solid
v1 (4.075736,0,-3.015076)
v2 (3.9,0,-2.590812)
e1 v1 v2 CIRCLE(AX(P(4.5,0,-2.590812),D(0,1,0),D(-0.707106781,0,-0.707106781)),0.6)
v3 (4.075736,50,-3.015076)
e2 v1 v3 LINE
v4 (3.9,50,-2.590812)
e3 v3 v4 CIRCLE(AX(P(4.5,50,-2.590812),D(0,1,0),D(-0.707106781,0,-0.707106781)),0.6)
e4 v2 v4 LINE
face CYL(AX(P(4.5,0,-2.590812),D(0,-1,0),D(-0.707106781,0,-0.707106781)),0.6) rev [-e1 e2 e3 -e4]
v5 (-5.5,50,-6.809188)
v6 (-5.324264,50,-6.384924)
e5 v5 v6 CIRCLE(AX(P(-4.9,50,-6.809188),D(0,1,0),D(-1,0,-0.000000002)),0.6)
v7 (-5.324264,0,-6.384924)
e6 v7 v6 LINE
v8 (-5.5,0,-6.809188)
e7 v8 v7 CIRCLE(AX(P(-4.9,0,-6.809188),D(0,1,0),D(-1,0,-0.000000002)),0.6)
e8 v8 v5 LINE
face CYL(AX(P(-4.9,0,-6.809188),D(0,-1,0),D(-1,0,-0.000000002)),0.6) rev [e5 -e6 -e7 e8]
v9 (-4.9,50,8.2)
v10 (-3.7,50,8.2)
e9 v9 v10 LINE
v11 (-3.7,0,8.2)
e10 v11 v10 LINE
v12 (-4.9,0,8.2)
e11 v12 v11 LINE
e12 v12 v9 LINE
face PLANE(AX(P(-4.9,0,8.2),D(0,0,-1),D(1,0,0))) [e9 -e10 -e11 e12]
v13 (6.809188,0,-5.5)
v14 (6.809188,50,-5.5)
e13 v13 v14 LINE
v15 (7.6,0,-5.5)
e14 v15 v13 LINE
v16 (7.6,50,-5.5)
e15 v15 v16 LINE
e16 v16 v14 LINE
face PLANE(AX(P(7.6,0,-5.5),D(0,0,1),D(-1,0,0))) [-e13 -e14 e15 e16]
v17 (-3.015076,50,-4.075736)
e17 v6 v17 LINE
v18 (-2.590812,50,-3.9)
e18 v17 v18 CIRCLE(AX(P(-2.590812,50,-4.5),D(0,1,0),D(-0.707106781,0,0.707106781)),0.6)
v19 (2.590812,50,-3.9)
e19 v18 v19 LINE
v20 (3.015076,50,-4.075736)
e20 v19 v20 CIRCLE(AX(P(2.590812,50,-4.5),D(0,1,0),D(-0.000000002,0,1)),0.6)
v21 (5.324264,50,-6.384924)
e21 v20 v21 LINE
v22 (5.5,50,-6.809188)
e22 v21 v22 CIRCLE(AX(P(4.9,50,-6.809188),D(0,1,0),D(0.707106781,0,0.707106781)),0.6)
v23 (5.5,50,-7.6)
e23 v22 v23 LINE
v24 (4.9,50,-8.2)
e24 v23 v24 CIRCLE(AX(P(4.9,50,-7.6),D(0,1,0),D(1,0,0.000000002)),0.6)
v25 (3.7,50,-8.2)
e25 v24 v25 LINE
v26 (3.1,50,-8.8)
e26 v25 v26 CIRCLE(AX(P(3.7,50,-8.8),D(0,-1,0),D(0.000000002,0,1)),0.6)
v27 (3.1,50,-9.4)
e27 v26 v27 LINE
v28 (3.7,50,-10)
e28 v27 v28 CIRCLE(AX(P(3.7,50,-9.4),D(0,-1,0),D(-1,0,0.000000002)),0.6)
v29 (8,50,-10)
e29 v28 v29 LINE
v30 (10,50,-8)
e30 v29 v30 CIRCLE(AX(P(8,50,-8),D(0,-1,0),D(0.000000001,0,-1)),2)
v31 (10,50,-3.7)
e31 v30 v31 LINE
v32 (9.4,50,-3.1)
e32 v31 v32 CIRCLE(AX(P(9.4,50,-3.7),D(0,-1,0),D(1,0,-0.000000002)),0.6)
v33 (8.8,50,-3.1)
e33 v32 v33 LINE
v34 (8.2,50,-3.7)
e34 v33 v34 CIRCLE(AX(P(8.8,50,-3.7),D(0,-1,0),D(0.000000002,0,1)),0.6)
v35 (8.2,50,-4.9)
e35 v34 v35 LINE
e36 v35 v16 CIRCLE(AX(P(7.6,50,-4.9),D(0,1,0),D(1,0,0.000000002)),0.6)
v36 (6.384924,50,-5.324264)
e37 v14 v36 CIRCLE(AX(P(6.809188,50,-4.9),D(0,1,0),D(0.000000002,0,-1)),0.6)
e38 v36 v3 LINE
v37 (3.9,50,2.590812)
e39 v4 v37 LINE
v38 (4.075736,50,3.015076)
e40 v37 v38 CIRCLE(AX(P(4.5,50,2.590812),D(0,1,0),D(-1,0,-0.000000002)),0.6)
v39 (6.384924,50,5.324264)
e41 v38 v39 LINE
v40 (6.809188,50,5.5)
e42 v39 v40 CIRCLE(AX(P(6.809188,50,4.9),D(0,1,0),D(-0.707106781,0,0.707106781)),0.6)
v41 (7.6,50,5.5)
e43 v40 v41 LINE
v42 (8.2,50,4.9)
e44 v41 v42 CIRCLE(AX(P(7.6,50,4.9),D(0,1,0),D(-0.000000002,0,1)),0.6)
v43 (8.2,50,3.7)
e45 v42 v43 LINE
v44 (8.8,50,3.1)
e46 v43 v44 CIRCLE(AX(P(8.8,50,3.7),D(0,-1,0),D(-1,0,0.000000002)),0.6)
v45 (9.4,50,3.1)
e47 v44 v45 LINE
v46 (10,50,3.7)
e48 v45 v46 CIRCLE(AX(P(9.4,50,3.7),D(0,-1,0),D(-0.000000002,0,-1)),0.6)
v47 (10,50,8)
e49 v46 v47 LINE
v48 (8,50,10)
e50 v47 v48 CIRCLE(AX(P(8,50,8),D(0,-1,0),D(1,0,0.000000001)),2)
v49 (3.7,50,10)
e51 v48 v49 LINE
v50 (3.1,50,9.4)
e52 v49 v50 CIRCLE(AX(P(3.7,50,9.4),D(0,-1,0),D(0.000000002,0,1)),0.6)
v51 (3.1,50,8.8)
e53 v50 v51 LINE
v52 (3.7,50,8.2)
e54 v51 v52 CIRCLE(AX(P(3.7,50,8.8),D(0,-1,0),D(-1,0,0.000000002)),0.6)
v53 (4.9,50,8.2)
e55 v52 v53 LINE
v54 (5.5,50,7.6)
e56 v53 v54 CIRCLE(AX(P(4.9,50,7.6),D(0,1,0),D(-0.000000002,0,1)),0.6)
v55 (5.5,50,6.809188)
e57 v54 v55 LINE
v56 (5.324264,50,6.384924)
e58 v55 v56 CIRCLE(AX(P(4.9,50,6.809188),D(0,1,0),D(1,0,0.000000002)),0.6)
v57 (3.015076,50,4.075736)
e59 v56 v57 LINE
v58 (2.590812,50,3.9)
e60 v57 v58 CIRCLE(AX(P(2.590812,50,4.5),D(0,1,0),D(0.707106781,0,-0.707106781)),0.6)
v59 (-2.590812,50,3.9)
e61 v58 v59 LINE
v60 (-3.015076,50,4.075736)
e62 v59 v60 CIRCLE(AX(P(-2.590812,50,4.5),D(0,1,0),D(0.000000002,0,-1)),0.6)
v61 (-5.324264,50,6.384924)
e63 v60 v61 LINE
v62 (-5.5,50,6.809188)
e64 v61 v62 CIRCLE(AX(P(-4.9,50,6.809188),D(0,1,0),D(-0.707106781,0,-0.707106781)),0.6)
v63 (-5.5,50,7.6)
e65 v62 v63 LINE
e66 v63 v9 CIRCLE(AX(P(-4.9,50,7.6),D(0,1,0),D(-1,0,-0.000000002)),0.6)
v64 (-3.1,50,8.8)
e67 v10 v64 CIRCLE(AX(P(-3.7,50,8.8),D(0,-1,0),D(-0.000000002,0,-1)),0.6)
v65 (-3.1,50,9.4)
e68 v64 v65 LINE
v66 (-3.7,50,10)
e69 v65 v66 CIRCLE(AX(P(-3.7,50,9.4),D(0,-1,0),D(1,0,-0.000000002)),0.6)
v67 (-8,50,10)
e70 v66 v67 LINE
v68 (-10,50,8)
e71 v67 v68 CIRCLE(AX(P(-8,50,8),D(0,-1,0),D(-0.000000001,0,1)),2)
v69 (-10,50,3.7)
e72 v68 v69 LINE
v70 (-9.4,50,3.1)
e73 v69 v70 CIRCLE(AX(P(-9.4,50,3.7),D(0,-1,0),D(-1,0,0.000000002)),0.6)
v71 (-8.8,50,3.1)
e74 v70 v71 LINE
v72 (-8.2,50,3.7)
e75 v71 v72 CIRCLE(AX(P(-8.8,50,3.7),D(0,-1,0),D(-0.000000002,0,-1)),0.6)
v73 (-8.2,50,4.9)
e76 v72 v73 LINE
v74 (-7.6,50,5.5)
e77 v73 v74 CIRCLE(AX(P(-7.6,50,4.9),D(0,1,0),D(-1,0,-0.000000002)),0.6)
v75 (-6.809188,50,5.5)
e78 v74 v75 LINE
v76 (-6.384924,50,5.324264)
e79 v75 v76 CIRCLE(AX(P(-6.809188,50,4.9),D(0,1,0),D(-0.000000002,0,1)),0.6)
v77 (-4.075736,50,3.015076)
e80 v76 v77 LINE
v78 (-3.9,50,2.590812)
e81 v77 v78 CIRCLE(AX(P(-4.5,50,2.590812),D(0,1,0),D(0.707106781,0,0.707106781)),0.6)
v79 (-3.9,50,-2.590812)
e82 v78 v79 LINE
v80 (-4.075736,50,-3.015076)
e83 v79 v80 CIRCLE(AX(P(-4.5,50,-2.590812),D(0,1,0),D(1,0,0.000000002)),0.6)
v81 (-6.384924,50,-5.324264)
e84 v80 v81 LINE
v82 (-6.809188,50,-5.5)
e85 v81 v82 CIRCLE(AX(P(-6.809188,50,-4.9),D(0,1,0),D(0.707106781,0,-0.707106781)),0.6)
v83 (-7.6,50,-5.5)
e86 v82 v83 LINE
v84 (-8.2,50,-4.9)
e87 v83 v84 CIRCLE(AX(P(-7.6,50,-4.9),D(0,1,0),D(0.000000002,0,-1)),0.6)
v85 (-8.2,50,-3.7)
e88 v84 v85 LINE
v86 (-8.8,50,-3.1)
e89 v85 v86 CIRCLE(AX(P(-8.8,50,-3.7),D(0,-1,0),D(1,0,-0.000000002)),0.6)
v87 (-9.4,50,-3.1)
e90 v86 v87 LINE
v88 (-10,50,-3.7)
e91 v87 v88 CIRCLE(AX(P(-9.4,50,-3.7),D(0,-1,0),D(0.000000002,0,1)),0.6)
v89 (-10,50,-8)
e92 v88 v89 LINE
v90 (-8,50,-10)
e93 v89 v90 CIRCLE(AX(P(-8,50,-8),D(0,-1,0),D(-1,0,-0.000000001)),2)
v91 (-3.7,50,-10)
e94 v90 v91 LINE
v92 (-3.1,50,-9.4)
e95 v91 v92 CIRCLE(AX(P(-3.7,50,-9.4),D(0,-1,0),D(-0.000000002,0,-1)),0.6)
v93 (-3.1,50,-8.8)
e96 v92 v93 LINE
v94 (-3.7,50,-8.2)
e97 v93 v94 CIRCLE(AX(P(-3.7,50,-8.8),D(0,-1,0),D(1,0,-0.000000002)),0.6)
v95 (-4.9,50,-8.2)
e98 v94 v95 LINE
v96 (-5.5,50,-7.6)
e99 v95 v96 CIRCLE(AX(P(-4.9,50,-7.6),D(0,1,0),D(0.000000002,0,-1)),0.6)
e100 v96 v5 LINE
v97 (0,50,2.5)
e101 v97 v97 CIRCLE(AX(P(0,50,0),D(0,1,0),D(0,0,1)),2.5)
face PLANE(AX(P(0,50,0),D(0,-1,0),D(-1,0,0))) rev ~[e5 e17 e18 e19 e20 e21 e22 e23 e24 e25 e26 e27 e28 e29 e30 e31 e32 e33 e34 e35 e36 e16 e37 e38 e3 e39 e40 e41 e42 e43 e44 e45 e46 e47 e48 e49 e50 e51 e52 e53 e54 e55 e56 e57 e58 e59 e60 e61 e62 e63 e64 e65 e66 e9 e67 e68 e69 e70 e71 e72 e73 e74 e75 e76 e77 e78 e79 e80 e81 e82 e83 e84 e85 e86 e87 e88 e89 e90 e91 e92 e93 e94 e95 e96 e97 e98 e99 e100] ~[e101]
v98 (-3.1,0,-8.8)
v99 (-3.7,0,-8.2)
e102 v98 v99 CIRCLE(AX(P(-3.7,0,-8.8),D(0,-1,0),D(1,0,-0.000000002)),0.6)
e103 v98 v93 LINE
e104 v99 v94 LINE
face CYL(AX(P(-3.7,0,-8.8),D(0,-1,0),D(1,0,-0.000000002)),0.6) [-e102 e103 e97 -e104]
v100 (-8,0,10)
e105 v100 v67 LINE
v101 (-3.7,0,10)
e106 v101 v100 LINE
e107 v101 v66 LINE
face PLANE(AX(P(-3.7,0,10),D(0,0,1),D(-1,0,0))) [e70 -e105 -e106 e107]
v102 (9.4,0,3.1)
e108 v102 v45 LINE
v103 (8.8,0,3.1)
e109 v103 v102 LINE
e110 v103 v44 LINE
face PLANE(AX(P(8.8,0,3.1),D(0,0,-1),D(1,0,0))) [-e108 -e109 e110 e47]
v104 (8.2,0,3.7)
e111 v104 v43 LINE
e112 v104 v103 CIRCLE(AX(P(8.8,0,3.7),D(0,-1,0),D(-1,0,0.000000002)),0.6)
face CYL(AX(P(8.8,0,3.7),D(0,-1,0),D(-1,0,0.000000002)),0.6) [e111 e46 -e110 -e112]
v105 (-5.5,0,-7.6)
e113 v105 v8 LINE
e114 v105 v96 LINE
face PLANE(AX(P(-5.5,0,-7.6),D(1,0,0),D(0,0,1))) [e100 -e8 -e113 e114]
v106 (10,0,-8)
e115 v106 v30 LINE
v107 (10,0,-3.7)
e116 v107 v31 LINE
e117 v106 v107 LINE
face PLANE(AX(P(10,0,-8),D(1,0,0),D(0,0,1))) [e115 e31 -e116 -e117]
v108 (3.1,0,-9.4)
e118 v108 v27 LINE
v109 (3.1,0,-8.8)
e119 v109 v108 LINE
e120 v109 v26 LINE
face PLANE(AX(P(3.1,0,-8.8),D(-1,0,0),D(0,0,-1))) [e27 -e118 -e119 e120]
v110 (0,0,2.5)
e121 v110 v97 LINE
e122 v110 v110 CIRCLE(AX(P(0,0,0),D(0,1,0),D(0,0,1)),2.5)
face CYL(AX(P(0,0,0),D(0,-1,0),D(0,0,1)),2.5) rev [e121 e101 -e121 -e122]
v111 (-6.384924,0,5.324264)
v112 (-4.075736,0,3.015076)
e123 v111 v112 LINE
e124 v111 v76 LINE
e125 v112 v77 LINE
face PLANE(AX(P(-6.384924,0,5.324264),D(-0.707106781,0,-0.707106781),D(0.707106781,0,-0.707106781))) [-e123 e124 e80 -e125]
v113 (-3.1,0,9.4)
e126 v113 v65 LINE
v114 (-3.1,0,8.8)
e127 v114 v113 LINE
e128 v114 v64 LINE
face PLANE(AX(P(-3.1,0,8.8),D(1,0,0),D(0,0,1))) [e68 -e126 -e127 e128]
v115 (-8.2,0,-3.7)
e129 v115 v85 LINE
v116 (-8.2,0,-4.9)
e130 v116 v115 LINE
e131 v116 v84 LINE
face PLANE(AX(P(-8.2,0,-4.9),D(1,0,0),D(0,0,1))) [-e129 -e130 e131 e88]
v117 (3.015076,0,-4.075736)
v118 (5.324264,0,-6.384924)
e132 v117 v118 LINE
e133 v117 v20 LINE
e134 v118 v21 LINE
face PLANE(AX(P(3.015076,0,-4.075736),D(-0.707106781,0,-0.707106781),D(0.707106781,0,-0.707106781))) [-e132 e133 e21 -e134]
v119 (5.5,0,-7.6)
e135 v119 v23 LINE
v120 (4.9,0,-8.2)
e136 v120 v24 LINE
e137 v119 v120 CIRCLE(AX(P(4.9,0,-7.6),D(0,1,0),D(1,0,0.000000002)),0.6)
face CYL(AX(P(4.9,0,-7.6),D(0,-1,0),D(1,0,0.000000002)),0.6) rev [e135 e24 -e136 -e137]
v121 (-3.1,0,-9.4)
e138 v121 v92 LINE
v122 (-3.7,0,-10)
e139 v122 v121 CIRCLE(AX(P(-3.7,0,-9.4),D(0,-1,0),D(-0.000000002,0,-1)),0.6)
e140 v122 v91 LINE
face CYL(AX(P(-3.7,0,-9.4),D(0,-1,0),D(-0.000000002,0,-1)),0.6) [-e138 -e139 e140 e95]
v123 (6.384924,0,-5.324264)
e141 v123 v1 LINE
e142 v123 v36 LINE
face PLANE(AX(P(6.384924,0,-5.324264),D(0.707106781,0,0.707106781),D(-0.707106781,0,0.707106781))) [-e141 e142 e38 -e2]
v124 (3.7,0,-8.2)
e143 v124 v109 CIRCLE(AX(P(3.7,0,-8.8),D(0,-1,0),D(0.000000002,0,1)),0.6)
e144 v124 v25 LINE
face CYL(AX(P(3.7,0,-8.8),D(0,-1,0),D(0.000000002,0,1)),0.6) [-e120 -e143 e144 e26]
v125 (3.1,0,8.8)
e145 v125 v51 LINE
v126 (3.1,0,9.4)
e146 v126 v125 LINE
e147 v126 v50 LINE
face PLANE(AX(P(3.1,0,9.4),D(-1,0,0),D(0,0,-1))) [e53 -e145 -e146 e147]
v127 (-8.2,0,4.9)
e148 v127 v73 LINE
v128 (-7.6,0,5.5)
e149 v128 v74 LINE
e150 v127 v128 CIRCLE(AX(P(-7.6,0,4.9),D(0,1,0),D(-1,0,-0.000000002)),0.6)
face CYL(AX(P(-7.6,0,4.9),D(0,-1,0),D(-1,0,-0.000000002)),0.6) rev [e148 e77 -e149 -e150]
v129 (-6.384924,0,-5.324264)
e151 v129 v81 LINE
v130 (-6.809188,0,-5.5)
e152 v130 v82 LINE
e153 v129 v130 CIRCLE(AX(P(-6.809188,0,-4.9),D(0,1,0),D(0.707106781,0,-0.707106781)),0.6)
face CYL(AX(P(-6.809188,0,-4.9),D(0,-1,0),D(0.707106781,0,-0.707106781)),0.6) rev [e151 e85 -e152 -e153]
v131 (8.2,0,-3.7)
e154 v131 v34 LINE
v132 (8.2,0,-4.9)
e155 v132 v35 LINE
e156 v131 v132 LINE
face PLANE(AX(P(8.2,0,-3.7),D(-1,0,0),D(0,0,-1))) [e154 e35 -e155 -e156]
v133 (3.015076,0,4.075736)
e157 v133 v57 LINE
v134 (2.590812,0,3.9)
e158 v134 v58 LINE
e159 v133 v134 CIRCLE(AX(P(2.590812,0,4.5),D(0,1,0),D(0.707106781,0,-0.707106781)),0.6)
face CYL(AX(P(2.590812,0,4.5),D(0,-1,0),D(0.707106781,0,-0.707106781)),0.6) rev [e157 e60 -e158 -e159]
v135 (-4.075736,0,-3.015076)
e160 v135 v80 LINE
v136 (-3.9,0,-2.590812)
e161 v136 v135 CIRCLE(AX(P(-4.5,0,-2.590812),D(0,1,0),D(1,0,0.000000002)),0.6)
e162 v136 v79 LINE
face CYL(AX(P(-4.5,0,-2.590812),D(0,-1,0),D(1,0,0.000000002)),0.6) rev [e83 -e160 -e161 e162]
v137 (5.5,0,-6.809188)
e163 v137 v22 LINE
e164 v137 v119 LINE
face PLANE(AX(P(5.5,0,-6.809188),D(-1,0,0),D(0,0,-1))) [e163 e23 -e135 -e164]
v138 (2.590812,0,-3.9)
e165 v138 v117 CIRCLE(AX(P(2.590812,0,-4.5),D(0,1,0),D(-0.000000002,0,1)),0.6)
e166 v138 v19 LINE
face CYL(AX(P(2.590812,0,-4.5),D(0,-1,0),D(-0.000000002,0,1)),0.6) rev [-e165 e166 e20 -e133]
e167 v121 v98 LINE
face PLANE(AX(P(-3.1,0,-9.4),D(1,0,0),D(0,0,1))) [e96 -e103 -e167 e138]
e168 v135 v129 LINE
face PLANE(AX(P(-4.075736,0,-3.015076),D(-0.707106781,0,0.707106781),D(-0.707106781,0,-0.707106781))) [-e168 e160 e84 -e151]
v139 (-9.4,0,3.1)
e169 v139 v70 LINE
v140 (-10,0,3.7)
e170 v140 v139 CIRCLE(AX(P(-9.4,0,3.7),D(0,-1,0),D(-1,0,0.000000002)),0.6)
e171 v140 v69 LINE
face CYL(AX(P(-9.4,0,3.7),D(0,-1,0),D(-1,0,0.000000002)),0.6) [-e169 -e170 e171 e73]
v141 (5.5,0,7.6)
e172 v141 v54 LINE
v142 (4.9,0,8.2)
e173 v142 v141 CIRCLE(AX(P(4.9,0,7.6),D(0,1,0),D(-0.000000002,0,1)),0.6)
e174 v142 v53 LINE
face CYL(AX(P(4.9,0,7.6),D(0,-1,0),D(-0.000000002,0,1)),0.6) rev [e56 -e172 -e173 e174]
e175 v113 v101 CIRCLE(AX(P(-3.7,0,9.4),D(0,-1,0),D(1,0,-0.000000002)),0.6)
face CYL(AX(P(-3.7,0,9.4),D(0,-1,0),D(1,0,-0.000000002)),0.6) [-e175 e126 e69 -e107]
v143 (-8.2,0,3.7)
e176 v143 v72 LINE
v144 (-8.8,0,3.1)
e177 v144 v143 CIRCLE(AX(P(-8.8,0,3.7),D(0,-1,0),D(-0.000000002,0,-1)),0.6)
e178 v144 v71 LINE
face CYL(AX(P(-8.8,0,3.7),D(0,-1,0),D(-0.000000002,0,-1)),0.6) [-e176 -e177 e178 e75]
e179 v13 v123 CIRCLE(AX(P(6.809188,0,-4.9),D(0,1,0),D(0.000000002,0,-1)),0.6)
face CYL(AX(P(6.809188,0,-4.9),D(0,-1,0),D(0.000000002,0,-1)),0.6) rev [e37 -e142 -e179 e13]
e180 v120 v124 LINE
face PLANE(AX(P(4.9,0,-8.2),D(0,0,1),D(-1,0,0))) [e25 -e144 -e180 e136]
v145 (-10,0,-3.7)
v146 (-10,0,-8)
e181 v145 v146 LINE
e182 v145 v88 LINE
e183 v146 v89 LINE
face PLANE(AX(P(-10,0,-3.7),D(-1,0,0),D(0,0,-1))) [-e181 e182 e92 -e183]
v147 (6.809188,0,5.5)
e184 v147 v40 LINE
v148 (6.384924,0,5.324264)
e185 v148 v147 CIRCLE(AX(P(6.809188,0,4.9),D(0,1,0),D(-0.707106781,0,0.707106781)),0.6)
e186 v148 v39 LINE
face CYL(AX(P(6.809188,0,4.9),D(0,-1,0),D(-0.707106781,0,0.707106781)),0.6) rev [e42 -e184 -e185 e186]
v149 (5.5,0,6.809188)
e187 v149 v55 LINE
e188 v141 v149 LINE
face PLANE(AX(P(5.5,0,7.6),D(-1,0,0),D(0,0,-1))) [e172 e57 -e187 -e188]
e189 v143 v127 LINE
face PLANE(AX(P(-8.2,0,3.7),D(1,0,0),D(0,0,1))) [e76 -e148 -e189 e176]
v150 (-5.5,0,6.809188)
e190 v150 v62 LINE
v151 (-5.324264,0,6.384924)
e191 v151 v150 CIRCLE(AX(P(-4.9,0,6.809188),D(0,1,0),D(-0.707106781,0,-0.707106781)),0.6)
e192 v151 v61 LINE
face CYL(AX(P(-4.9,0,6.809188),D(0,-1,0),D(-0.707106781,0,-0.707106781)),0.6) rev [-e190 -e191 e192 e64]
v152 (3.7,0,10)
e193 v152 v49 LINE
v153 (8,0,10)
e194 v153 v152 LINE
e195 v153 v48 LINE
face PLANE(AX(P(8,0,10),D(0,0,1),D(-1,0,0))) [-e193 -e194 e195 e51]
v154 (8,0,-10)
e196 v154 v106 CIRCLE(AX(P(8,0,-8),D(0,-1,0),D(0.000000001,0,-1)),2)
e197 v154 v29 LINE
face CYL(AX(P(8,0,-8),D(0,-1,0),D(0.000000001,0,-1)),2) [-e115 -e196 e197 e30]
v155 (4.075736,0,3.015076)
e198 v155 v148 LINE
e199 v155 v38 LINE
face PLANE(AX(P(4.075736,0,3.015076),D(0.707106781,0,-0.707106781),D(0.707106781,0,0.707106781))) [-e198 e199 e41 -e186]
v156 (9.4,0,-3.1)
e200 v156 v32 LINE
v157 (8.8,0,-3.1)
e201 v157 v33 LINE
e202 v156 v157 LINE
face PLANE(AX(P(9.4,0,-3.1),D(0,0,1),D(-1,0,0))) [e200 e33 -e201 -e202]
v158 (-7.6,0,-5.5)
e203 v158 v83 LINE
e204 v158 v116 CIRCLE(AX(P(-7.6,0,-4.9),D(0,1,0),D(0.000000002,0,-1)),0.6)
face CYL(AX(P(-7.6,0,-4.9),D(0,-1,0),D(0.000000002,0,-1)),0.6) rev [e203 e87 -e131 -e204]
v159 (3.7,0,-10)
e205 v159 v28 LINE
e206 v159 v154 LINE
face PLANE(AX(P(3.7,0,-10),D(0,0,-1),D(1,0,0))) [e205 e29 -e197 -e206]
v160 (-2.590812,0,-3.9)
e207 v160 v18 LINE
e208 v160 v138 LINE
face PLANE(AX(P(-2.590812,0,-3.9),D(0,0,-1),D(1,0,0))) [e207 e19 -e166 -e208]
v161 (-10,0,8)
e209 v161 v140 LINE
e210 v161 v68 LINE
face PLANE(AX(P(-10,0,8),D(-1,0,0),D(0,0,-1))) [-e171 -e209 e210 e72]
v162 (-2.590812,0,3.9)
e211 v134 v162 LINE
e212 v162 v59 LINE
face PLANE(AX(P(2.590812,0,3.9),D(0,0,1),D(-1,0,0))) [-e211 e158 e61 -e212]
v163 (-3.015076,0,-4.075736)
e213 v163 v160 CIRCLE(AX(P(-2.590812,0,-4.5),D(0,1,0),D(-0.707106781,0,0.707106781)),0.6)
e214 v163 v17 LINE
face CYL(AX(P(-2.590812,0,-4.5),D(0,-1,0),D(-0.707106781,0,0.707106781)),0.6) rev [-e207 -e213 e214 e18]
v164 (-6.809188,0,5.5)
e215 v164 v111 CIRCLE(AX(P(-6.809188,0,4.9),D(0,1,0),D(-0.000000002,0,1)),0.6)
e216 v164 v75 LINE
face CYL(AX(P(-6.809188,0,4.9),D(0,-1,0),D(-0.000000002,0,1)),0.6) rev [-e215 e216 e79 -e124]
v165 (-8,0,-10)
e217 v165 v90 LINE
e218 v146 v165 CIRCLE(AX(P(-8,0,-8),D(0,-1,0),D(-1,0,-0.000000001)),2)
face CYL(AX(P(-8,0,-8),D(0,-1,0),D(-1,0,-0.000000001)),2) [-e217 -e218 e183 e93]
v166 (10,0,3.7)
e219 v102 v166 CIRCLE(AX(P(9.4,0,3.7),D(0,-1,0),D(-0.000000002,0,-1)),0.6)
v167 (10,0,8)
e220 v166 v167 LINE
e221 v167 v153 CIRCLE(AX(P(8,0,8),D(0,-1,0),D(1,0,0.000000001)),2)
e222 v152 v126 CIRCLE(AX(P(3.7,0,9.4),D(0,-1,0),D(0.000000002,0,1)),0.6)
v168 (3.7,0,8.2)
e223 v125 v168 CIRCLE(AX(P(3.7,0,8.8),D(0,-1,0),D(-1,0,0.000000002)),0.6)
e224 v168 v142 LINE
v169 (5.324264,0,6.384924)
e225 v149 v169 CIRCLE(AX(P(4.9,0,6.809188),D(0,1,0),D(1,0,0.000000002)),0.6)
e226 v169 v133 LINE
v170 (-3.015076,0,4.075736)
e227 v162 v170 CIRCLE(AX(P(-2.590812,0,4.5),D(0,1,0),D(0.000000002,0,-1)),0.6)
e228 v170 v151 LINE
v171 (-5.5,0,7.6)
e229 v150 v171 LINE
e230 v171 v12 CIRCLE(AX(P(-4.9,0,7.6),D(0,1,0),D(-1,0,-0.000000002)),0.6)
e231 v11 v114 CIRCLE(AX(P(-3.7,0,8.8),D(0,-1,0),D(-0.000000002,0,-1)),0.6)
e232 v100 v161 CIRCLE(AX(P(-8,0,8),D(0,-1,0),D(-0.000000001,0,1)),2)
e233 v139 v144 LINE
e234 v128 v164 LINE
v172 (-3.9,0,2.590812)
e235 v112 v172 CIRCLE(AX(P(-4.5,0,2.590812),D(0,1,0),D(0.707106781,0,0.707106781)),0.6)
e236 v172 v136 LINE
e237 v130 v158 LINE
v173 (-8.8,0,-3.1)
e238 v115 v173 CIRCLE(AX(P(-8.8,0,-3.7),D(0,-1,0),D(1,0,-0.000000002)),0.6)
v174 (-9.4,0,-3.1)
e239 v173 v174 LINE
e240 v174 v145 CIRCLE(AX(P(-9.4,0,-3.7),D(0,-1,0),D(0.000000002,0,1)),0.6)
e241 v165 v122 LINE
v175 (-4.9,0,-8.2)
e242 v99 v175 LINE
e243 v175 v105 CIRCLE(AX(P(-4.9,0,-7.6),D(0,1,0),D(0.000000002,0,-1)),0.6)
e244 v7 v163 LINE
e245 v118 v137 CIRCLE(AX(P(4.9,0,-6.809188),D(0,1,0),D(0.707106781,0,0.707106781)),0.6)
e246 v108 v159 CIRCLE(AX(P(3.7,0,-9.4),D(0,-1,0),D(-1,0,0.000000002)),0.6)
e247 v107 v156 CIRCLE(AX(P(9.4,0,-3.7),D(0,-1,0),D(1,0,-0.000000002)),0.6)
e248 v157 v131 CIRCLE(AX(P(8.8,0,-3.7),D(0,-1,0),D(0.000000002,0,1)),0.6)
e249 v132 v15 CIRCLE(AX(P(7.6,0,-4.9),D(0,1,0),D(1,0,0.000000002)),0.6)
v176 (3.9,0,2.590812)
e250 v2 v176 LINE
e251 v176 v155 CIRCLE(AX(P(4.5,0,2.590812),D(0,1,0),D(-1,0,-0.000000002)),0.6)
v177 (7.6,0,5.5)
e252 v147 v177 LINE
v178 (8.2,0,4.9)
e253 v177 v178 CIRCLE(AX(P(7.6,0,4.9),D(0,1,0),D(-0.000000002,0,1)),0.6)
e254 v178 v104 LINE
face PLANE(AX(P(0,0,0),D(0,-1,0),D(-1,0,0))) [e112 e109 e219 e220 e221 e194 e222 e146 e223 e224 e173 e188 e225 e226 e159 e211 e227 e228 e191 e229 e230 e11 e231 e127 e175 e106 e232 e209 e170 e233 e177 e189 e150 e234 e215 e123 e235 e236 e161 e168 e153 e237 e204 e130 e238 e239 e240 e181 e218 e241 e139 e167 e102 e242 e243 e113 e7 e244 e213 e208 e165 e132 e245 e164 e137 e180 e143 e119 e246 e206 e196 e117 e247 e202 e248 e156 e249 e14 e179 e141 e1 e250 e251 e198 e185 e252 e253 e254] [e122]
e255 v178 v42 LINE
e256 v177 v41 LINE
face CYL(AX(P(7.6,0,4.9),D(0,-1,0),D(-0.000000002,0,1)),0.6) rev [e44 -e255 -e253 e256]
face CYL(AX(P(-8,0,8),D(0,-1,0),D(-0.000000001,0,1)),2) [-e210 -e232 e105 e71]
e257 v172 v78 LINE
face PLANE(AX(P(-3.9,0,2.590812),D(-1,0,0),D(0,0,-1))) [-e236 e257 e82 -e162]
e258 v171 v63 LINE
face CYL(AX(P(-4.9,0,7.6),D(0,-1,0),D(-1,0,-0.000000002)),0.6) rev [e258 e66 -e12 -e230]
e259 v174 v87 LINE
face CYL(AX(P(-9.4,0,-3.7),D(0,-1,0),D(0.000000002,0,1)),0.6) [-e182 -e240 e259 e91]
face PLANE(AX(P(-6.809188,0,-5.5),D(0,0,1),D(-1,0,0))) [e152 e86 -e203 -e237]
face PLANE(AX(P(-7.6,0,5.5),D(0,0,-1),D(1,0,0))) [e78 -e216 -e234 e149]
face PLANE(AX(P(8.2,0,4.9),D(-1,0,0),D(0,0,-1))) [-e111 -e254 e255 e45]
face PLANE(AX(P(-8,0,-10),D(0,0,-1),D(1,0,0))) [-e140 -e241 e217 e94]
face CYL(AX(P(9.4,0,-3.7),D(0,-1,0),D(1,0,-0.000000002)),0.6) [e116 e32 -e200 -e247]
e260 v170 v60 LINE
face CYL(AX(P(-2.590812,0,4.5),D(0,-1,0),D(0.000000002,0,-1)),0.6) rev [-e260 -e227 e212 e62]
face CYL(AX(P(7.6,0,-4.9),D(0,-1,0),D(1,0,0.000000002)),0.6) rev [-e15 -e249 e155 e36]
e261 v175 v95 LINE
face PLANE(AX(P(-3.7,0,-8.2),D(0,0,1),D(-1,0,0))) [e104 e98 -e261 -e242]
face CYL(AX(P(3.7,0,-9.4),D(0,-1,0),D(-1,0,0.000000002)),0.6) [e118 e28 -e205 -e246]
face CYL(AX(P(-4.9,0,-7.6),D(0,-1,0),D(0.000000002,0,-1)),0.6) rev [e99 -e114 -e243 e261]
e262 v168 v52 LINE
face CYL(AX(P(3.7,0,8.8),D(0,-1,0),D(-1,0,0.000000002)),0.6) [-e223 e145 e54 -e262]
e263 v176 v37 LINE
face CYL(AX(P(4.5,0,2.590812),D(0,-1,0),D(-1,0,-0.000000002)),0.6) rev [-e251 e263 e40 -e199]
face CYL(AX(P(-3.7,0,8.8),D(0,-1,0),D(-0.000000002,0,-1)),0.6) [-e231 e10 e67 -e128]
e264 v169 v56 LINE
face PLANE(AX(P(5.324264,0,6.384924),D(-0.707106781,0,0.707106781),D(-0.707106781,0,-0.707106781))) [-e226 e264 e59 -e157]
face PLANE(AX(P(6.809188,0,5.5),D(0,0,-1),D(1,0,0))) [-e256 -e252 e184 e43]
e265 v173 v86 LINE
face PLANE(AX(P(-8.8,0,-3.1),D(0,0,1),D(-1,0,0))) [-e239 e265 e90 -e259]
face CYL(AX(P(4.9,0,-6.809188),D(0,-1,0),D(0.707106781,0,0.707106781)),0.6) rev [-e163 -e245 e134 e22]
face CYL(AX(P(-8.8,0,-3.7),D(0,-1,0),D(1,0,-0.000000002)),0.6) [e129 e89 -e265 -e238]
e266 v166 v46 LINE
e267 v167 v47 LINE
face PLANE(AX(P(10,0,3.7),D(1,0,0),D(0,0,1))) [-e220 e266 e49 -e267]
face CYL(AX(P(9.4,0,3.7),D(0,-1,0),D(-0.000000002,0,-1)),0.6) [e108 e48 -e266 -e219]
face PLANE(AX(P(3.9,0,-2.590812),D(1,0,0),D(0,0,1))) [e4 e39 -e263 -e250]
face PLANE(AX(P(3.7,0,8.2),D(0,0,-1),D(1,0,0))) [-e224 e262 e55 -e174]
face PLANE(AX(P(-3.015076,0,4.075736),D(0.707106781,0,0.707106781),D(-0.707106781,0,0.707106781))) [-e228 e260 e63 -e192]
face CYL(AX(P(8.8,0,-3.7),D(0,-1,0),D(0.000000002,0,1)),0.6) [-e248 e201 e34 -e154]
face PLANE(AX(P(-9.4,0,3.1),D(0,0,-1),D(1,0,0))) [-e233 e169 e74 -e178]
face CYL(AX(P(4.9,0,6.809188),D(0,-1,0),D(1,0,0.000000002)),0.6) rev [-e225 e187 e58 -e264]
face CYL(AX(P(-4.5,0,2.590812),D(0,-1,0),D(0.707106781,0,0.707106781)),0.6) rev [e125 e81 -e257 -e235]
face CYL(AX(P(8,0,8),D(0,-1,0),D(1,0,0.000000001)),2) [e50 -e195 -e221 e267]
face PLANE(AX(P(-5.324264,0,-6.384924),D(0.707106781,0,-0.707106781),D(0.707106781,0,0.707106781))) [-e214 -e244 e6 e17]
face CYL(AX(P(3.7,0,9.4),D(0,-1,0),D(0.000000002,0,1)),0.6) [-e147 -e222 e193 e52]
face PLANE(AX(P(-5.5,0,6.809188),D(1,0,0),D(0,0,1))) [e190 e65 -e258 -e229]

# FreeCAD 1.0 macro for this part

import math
import FreeCAD as App
import Part
import Sketcher
from FreeCAD import Vector
Q = App.Units.Quantity

doc = App.newDocument("Part")
params = doc.addObject("Spreadsheet::Sheet", "Params")
for row, (alias, value) in enumerate([
    ("sketch1_diameter", "5 mm"),
    ("sketch1_radius", "2 mm"),
    ("sketch1_radius2", "0.6 mm"),
    ("sketch1_width", "1.2 mm"),
    ("sketch1_width2", "4.3 mm"),
    ("pad1_length", "50 mm"),
], start=1):
    params.set(f"A{row}", alias)
    params.set(f"B{row}", "=" + value)
    params.setAlias(f"B{row}", alias)

body = doc.addObject("PartDesign::Body", "Body")

# Sketch on XZ plane
sketch1 = body.newObject("Sketcher::SketchObject", "Sketch")
sketch1.AttachmentSupport = (doc.getObject("XZ_Plane"), [""])
sketch1.MapMode = "FlatFace"
sketch1.addGeometry(Part.LineSegment(Vector(3.1, -9.4, 0), Vector(3.1, -8.8, 0)), False)
sketch1.addGeometry(Part.ArcOfCircle(Part.Circle(Vector(3.7, -8.8, 0), Vector(0, 0, 1), 0.6), math.radians(90), math.radians(180)), False)
sketch1.addGeometry(Part.LineSegment(Vector(3.7, -8.2, 0), Vector(4.9, -8.2, 0)), False)
sketch1.addGeometry(Part.ArcOfCircle(Part.Circle(Vector(4.9, -7.6, 0), Vector(0, 0, 1), 0.6), math.radians(-90), math.radians(0)), False)
sketch1.addGeometry(Part.LineSegment(Vector(5.5, -7.6, 0), Vector(5.5, -6.81, 0)), False)
sketch1.addGeometry(Part.ArcOfCircle(Part.Circle(Vector(4.9, -6.81, 0), Vector(0, 0, 1), 0.6), math.radians(0), math.radians(45)), False)
sketch1.addGeometry(Part.LineSegment(Vector(5.32, -6.38, 0), Vector(3.02, -4.08, 0)), False)
sketch1.addGeometry(Part.ArcOfCircle(Part.Circle(Vector(2.59, -4.5, 0), Vector(0, 0, 1), 0.6), math.radians(45), math.radians(90)), False)
sketch1.addGeometry(Part.LineSegment(Vector(2.59, -3.9, 0), Vector(-2.59, -3.9, 0)), False)
sketch1.addGeometry(Part.ArcOfCircle(Part.Circle(Vector(-2.59, -4.5, 0), Vector(0, 0, 1), 0.6), math.radians(90), math.radians(135)), False)
sketch1.addGeometry(Part.LineSegment(Vector(-3.02, -4.08, 0), Vector(-5.32, -6.38, 0)), False)
sketch1.addGeometry(Part.ArcOfCircle(Part.Circle(Vector(-4.9, -6.81, 0), Vector(0, 0, 1), 0.6), math.radians(135), math.radians(180)), False)
sketch1.addGeometry(Part.LineSegment(Vector(-5.5, -6.81, 0), Vector(-5.5, -7.6, 0)), False)
sketch1.addGeometry(Part.ArcOfCircle(Part.Circle(Vector(-4.9, -7.6, 0), Vector(0, 0, 1), 0.6), math.radians(180), math.radians(270)), False)
sketch1.addGeometry(Part.LineSegment(Vector(-4.9, -8.2, 0), Vector(-3.7, -8.2, 0)), False)
sketch1.addGeometry(Part.ArcOfCircle(Part.Circle(Vector(-3.7, -8.8, 0), Vector(0, 0, 1), 0.6), math.radians(0), math.radians(90)), False)
sketch1.addGeometry(Part.LineSegment(Vector(-3.1, -8.8, 0), Vector(-3.1, -9.4, 0)), False)
sketch1.addGeometry(Part.ArcOfCircle(Part.Circle(Vector(-3.7, -9.4, 0), Vector(0, 0, 1), 0.6), math.radians(-90), math.radians(0)), False)
sketch1.addGeometry(Part.LineSegment(Vector(-3.7, -10, 0), Vector(-8, -10, 0)), False)
sketch1.addGeometry(Part.ArcOfCircle(Part.Circle(Vector(-8, -8, 0), Vector(0, 0, 1), 2), math.radians(-180), math.radians(-90)), False)
sketch1.addGeometry(Part.LineSegment(Vector(-10, -8, 0), Vector(-10, -3.7, 0)), False)
sketch1.addGeometry(Part.ArcOfCircle(Part.Circle(Vector(-9.4, -3.7, 0), Vector(0, 0, 1), 0.6), math.radians(90), math.radians(180)), False)
sketch1.addGeometry(Part.LineSegment(Vector(-9.4, -3.1, 0), Vector(-8.8, -3.1, 0)), False)
sketch1.addGeometry(Part.ArcOfCircle(Part.Circle(Vector(-8.8, -3.7, 0), Vector(0, 0, 1), 0.6), math.radians(0), math.radians(90)), False)
sketch1.addGeometry(Part.LineSegment(Vector(-8.2, -3.7, 0), Vector(-8.2, -4.9, 0)), False)
sketch1.addGeometry(Part.ArcOfCircle(Part.Circle(Vector(-7.6, -4.9, 0), Vector(0, 0, 1), 0.6), math.radians(180), math.radians(270)), False)
sketch1.addGeometry(Part.LineSegment(Vector(-7.6, -5.5, 0), Vector(-6.81, -5.5, 0)), False)
sketch1.addGeometry(Part.ArcOfCircle(Part.Circle(Vector(-6.81, -4.9, 0), Vector(0, 0, 1), 0.6), math.radians(-90), math.radians(-45)), False)
sketch1.addGeometry(Part.LineSegment(Vector(-6.38, -5.32, 0), Vector(-4.08, -3.02, 0)), False)
sketch1.addGeometry(Part.ArcOfCircle(Part.Circle(Vector(-4.5, -2.59, 0), Vector(0, 0, 1), 0.6), math.radians(-45), math.radians(0)), False)
sketch1.addGeometry(Part.LineSegment(Vector(-3.9, -2.59, 0), Vector(-3.9, 2.59, 0)), False)
sketch1.addGeometry(Part.ArcOfCircle(Part.Circle(Vector(-4.5, 2.59, 0), Vector(0, 0, 1), 0.6), math.radians(0), math.radians(45)), False)
sketch1.addGeometry(Part.LineSegment(Vector(-4.08, 3.02, 0), Vector(-6.38, 5.32, 0)), False)
sketch1.addGeometry(Part.ArcOfCircle(Part.Circle(Vector(-6.81, 4.9, 0), Vector(0, 0, 1), 0.6), math.radians(45), math.radians(90)), False)
sketch1.addGeometry(Part.LineSegment(Vector(-6.81, 5.5, 0), Vector(-7.6, 5.5, 0)), False)
sketch1.addGeometry(Part.ArcOfCircle(Part.Circle(Vector(-7.6, 4.9, 0), Vector(0, 0, 1), 0.6), math.radians(90), math.radians(180)), False)
sketch1.addGeometry(Part.LineSegment(Vector(-8.2, 4.9, 0), Vector(-8.2, 3.7, 0)), False)
sketch1.addGeometry(Part.ArcOfCircle(Part.Circle(Vector(-8.8, 3.7, 0), Vector(0, 0, 1), 0.6), math.radians(-90), math.radians(0)), False)
sketch1.addGeometry(Part.LineSegment(Vector(-8.8, 3.1, 0), Vector(-9.4, 3.1, 0)), False)
sketch1.addGeometry(Part.ArcOfCircle(Part.Circle(Vector(-9.4, 3.7, 0), Vector(0, 0, 1), 0.6), math.radians(180), math.radians(270)), False)
sketch1.addGeometry(Part.LineSegment(Vector(-10, 3.7, 0), Vector(-10, 8, 0)), False)
sketch1.addGeometry(Part.ArcOfCircle(Part.Circle(Vector(-8, 8, 0), Vector(0, 0, 1), 2), math.radians(90), math.radians(180)), False)
sketch1.addGeometry(Part.LineSegment(Vector(-8, 10, 0), Vector(-3.7, 10, 0)), False)
sketch1.addGeometry(Part.ArcOfCircle(Part.Circle(Vector(-3.7, 9.4, 0), Vector(0, 0, 1), 0.6), math.radians(0), math.radians(90)), False)
sketch1.addGeometry(Part.LineSegment(Vector(-3.1, 9.4, 0), Vector(-3.1, 8.8, 0)), False)
sketch1.addGeometry(Part.ArcOfCircle(Part.Circle(Vector(-3.7, 8.8, 0), Vector(0, 0, 1), 0.6), math.radians(-90), math.radians(0)), False)
sketch1.addGeometry(Part.LineSegment(Vector(-3.7, 8.2, 0), Vector(-4.9, 8.2, 0)), False)
sketch1.addGeometry(Part.ArcOfCircle(Part.Circle(Vector(-4.9, 7.6, 0), Vector(0, 0, 1), 0.6), math.radians(90), math.radians(180)), False)
sketch1.addGeometry(Part.LineSegment(Vector(-5.5, 7.6, 0), Vector(-5.5, 6.81, 0)), False)
sketch1.addGeometry(Part.ArcOfCircle(Part.Circle(Vector(-4.9, 6.81, 0), Vector(0, 0, 1), 0.6), math.radians(180), math.radians(225)), False)
sketch1.addGeometry(Part.LineSegment(Vector(-5.32, 6.38, 0), Vector(-3.02, 4.08, 0)), False)
sketch1.addGeometry(Part.ArcOfCircle(Part.Circle(Vector(-2.59, 4.5, 0), Vector(0, 0, 1), 0.6), math.radians(-135), math.radians(-90)), False)
sketch1.addGeometry(Part.LineSegment(Vector(-2.59, 3.9, 0), Vector(2.59, 3.9, 0)), False)
sketch1.addGeometry(Part.ArcOfCircle(Part.Circle(Vector(2.59, 4.5, 0), Vector(0, 0, 1), 0.6), math.radians(-90), math.radians(-45)), False)
sketch1.addGeometry(Part.LineSegment(Vector(3.02, 4.08, 0), Vector(5.32, 6.38, 0)), False)
sketch1.addGeometry(Part.ArcOfCircle(Part.Circle(Vector(4.9, 6.81, 0), Vector(0, 0, 1), 0.6), math.radians(-45), math.radians(0)), False)
sketch1.addGeometry(Part.LineSegment(Vector(5.5, 6.81, 0), Vector(5.5, 7.6, 0)), False)
sketch1.addGeometry(Part.ArcOfCircle(Part.Circle(Vector(4.9, 7.6, 0), Vector(0, 0, 1), 0.6), math.radians(0), math.radians(90)), False)
sketch1.addGeometry(Part.LineSegment(Vector(4.9, 8.2, 0), Vector(3.7, 8.2, 0)), False)
sketch1.addGeometry(Part.ArcOfCircle(Part.Circle(Vector(3.7, 8.8, 0), Vector(0, 0, 1), 0.6), math.radians(180), math.radians(270)), False)
sketch1.addGeometry(Part.LineSegment(Vector(3.1, 8.8, 0), Vector(3.1, 9.4, 0)), False)
sketch1.addGeometry(Part.ArcOfCircle(Part.Circle(Vector(3.7, 9.4, 0), Vector(0, 0, 1), 0.6), math.radians(90), math.radians(180)), False)
sketch1.addGeometry(Part.LineSegment(Vector(3.7, 10, 0), Vector(8, 10, 0)), False)
sketch1.addGeometry(Part.ArcOfCircle(Part.Circle(Vector(8, 8, 0), Vector(0, 0, 1), 2), math.radians(0), math.radians(90)), False)
sketch1.addGeometry(Part.LineSegment(Vector(10, 8, 0), Vector(10, 3.7, 0)), False)
sketch1.addGeometry(Part.ArcOfCircle(Part.Circle(Vector(9.4, 3.7, 0), Vector(0, 0, 1), 0.6), math.radians(-90), math.radians(0)), False)
sketch1.addGeometry(Part.LineSegment(Vector(9.4, 3.1, 0), Vector(8.8, 3.1, 0)), False)
sketch1.addGeometry(Part.ArcOfCircle(Part.Circle(Vector(8.8, 3.7, 0), Vector(0, 0, 1), 0.6), math.radians(180), math.radians(270)), False)
sketch1.addGeometry(Part.LineSegment(Vector(8.2, 3.7, 0), Vector(8.2, 4.9, 0)), False)
sketch1.addGeometry(Part.ArcOfCircle(Part.Circle(Vector(7.6, 4.9, 0), Vector(0, 0, 1), 0.6), math.radians(0), math.radians(90)), False)
sketch1.addGeometry(Part.LineSegment(Vector(7.6, 5.5, 0), Vector(6.81, 5.5, 0)), False)
sketch1.addGeometry(Part.ArcOfCircle(Part.Circle(Vector(6.81, 4.9, 0), Vector(0, 0, 1), 0.6), math.radians(90), math.radians(135)), False)
sketch1.addGeometry(Part.LineSegment(Vector(6.38, 5.32, 0), Vector(4.08, 3.02, 0)), False)
sketch1.addGeometry(Part.ArcOfCircle(Part.Circle(Vector(4.5, 2.59, 0), Vector(0, 0, 1), 0.6), math.radians(135), math.radians(180)), False)
sketch1.addGeometry(Part.LineSegment(Vector(3.9, 2.59, 0), Vector(3.9, -2.59, 0)), False)
sketch1.addGeometry(Part.ArcOfCircle(Part.Circle(Vector(4.5, -2.59, 0), Vector(0, 0, 1), 0.6), math.radians(180), math.radians(225)), False)
sketch1.addGeometry(Part.LineSegment(Vector(4.08, -3.02, 0), Vector(6.38, -5.32, 0)), False)
sketch1.addGeometry(Part.ArcOfCircle(Part.Circle(Vector(6.81, -4.9, 0), Vector(0, 0, 1), 0.6), math.radians(-135), math.radians(-90)), False)
sketch1.addGeometry(Part.LineSegment(Vector(6.81, -5.5, 0), Vector(7.6, -5.5, 0)), False)
sketch1.addGeometry(Part.ArcOfCircle(Part.Circle(Vector(7.6, -4.9, 0), Vector(0, 0, 1), 0.6), math.radians(-90), math.radians(0)), False)
sketch1.addGeometry(Part.LineSegment(Vector(8.2, -4.9, 0), Vector(8.2, -3.7, 0)), False)
sketch1.addGeometry(Part.ArcOfCircle(Part.Circle(Vector(8.8, -3.7, 0), Vector(0, 0, 1), 0.6), math.radians(90), math.radians(180)), False)
sketch1.addGeometry(Part.LineSegment(Vector(8.8, -3.1, 0), Vector(9.4, -3.1, 0)), False)
sketch1.addGeometry(Part.ArcOfCircle(Part.Circle(Vector(9.4, -3.7, 0), Vector(0, 0, 1), 0.6), math.radians(0), math.radians(90)), False)
sketch1.addGeometry(Part.LineSegment(Vector(10, -3.7, 0), Vector(10, -8, 0)), False)
sketch1.addGeometry(Part.ArcOfCircle(Part.Circle(Vector(8, -8, 0), Vector(0, 0, 1), 2), math.radians(-90), math.radians(0)), False)
sketch1.addGeometry(Part.LineSegment(Vector(8, -10, 0), Vector(3.7, -10, 0)), False)
sketch1.addGeometry(Part.ArcOfCircle(Part.Circle(Vector(3.7, -9.4, 0), Vector(0, 0, 1), 0.6), math.radians(180), math.radians(270)), False)
sketch1.addGeometry(Part.Circle(Vector(0, 0, 0), Vector(0, 0, 1), 2.5), False)
sketch1.addConstraint(Sketcher.Constraint("Tangent", 0, 2, 1, 2))
sketch1.addConstraint(Sketcher.Constraint("Tangent", 1, 1, 2, 1))
sketch1.addConstraint(Sketcher.Constraint("Tangent", 2, 2, 3, 1))
sketch1.addConstraint(Sketcher.Constraint("Tangent", 3, 2, 4, 1))
sketch1.addConstraint(Sketcher.Constraint("Tangent", 4, 2, 5, 1))
sketch1.addConstraint(Sketcher.Constraint("Tangent", 5, 2, 6, 1))
sketch1.addConstraint(Sketcher.Constraint("Tangent", 6, 2, 7, 1))
sketch1.addConstraint(Sketcher.Constraint("Tangent", 7, 2, 8, 1))
sketch1.addConstraint(Sketcher.Constraint("Tangent", 8, 2, 9, 1))
sketch1.addConstraint(Sketcher.Constraint("Tangent", 9, 2, 10, 1))
sketch1.addConstraint(Sketcher.Constraint("Tangent", 10, 2, 11, 1))
sketch1.addConstraint(Sketcher.Constraint("Tangent", 11, 2, 12, 1))
sketch1.addConstraint(Sketcher.Constraint("Tangent", 12, 2, 13, 1))
sketch1.addConstraint(Sketcher.Constraint("Tangent", 13, 2, 14, 1))
sketch1.addConstraint(Sketcher.Constraint("Tangent", 14, 2, 15, 2))
sketch1.addConstraint(Sketcher.Constraint("Tangent", 15, 1, 16, 1))
sketch1.addConstraint(Sketcher.Constraint("Tangent", 16, 2, 17, 2))
sketch1.addConstraint(Sketcher.Constraint("Tangent", 17, 1, 18, 1))
sketch1.addConstraint(Sketcher.Constraint("Tangent", 18, 2, 19, 2))
sketch1.addConstraint(Sketcher.Constraint("Tangent", 19, 1, 20, 1))
sketch1.addConstraint(Sketcher.Constraint("Tangent", 20, 2, 21, 2))
sketch1.addConstraint(Sketcher.Constraint("Tangent", 21, 1, 22, 1))
sketch1.addConstraint(Sketcher.Constraint("Tangent", 22, 2, 23, 2))
sketch1.addConstraint(Sketcher.Constraint("Tangent", 23, 1, 24, 1))
sketch1.addConstraint(Sketcher.Constraint("Tangent", 24, 2, 25, 1))
sketch1.addConstraint(Sketcher.Constraint("Tangent", 25, 2, 26, 1))
sketch1.addConstraint(Sketcher.Constraint("Tangent", 26, 2, 27, 1))
sketch1.addConstraint(Sketcher.Constraint("Tangent", 27, 2, 28, 1))
sketch1.addConstraint(Sketcher.Constraint("Tangent", 28, 2, 29, 1))
sketch1.addConstraint(Sketcher.Constraint("Tangent", 29, 2, 30, 1))
sketch1.addConstraint(Sketcher.Constraint("Tangent", 30, 2, 31, 1))
sketch1.addConstraint(Sketcher.Constraint("Tangent", 31, 2, 32, 1))
sketch1.addConstraint(Sketcher.Constraint("Tangent", 32, 2, 33, 1))
sketch1.addConstraint(Sketcher.Constraint("Tangent", 33, 2, 34, 1))
sketch1.addConstraint(Sketcher.Constraint("Tangent", 34, 2, 35, 1))
sketch1.addConstraint(Sketcher.Constraint("Tangent", 35, 2, 36, 1))
sketch1.addConstraint(Sketcher.Constraint("Tangent", 36, 2, 37, 2))
sketch1.addConstraint(Sketcher.Constraint("Tangent", 37, 1, 38, 1))
sketch1.addConstraint(Sketcher.Constraint("Tangent", 38, 2, 39, 2))
sketch1.addConstraint(Sketcher.Constraint("Tangent", 39, 1, 40, 1))
sketch1.addConstraint(Sketcher.Constraint("Tangent", 40, 2, 41, 2))
sketch1.addConstraint(Sketcher.Constraint("Tangent", 41, 1, 42, 1))
sketch1.addConstraint(Sketcher.Constraint("Tangent", 42, 2, 43, 2))
sketch1.addConstraint(Sketcher.Constraint("Tangent", 43, 1, 44, 1))
sketch1.addConstraint(Sketcher.Constraint("Tangent", 44, 2, 45, 2))
sketch1.addConstraint(Sketcher.Constraint("Tangent", 45, 1, 46, 1))
sketch1.addConstraint(Sketcher.Constraint("Tangent", 46, 2, 47, 1))
sketch1.addConstraint(Sketcher.Constraint("Tangent", 47, 2, 48, 1))
sketch1.addConstraint(Sketcher.Constraint("Tangent", 48, 2, 49, 1))
sketch1.addConstraint(Sketcher.Constraint("Tangent", 49, 2, 50, 1))
sketch1.addConstraint(Sketcher.Constraint("Tangent", 50, 2, 51, 1))
sketch1.addConstraint(Sketcher.Constraint("Tangent", 51, 2, 52, 1))
sketch1.addConstraint(Sketcher.Constraint("Tangent", 52, 2, 53, 1))
sketch1.addConstraint(Sketcher.Constraint("Tangent", 53, 2, 54, 1))
sketch1.addConstraint(Sketcher.Constraint("Tangent", 54, 2, 55, 1))
sketch1.addConstraint(Sketcher.Constraint("Tangent", 55, 2, 56, 1))
sketch1.addConstraint(Sketcher.Constraint("Tangent", 56, 2, 57, 1))
sketch1.addConstraint(Sketcher.Constraint("Tangent", 57, 2, 58, 1))
sketch1.addConstraint(Sketcher.Constraint("Tangent", 58, 2, 59, 2))
sketch1.addConstraint(Sketcher.Constraint("Tangent", 59, 1, 60, 1))
sketch1.addConstraint(Sketcher.Constraint("Tangent", 60, 2, 61, 2))
sketch1.addConstraint(Sketcher.Constraint("Tangent", 61, 1, 62, 1))
sketch1.addConstraint(Sketcher.Constraint("Tangent", 62, 2, 63, 2))
sketch1.addConstraint(Sketcher.Constraint("Tangent", 63, 1, 64, 1))
sketch1.addConstraint(Sketcher.Constraint("Tangent", 64, 2, 65, 2))
sketch1.addConstraint(Sketcher.Constraint("Tangent", 65, 1, 66, 1))
sketch1.addConstraint(Sketcher.Constraint("Tangent", 66, 2, 67, 2))
sketch1.addConstraint(Sketcher.Constraint("Tangent", 67, 1, 68, 1))
sketch1.addConstraint(Sketcher.Constraint("Tangent", 68, 2, 69, 1))
sketch1.addConstraint(Sketcher.Constraint("Tangent", 69, 2, 70, 1))
sketch1.addConstraint(Sketcher.Constraint("Tangent", 70, 2, 71, 1))
sketch1.addConstraint(Sketcher.Constraint("Tangent", 71, 2, 72, 1))
sketch1.addConstraint(Sketcher.Constraint("Tangent", 72, 2, 73, 1))
sketch1.addConstraint(Sketcher.Constraint("Tangent", 73, 2, 74, 1))
sketch1.addConstraint(Sketcher.Constraint("Tangent", 74, 2, 75, 1))
sketch1.addConstraint(Sketcher.Constraint("Tangent", 75, 2, 76, 1))
sketch1.addConstraint(Sketcher.Constraint("Tangent", 76, 2, 77, 1))
sketch1.addConstraint(Sketcher.Constraint("Tangent", 77, 2, 78, 1))
sketch1.addConstraint(Sketcher.Constraint("Tangent", 78, 2, 79, 1))
sketch1.addConstraint(Sketcher.Constraint("Tangent", 79, 2, 80, 1))
sketch1.addConstraint(Sketcher.Constraint("Tangent", 80, 2, 81, 2))
sketch1.addConstraint(Sketcher.Constraint("Tangent", 81, 1, 82, 1))
sketch1.addConstraint(Sketcher.Constraint("Tangent", 82, 2, 83, 2))
sketch1.addConstraint(Sketcher.Constraint("Tangent", 83, 1, 84, 1))
sketch1.addConstraint(Sketcher.Constraint("Tangent", 84, 2, 85, 2))
sketch1.addConstraint(Sketcher.Constraint("Tangent", 85, 1, 86, 1))
sketch1.addConstraint(Sketcher.Constraint("Tangent", 86, 2, 87, 2))
sketch1.addConstraint(Sketcher.Constraint("Tangent", 87, 1, 0, 1))
sketch1.addConstraint(Sketcher.Constraint("Vertical", 0))
sketch1.addConstraint(Sketcher.Constraint("Horizontal", 2))
sketch1.addConstraint(Sketcher.Constraint("Vertical", 4))
sketch1.addConstraint(Sketcher.Constraint("Horizontal", 8))
sketch1.addConstraint(Sketcher.Constraint("Vertical", 12))
sketch1.addConstraint(Sketcher.Constraint("Horizontal", 14))
sketch1.addConstraint(Sketcher.Constraint("Vertical", 16))
sketch1.addConstraint(Sketcher.Constraint("Horizontal", 18))
sketch1.addConstraint(Sketcher.Constraint("Vertical", 20))
sketch1.addConstraint(Sketcher.Constraint("Horizontal", 22))
sketch1.addConstraint(Sketcher.Constraint("Vertical", 24))
sketch1.addConstraint(Sketcher.Constraint("Horizontal", 26))
sketch1.addConstraint(Sketcher.Constraint("Vertical", 30))
sketch1.addConstraint(Sketcher.Constraint("Horizontal", 34))
sketch1.addConstraint(Sketcher.Constraint("Vertical", 36))
sketch1.addConstraint(Sketcher.Constraint("Horizontal", 38))
sketch1.addConstraint(Sketcher.Constraint("Vertical", 40))
sketch1.addConstraint(Sketcher.Constraint("Horizontal", 42))
sketch1.addConstraint(Sketcher.Constraint("Vertical", 44))
sketch1.addConstraint(Sketcher.Constraint("Horizontal", 46))
sketch1.addConstraint(Sketcher.Constraint("Vertical", 48))
sketch1.addConstraint(Sketcher.Constraint("Horizontal", 52))
sketch1.addConstraint(Sketcher.Constraint("Vertical", 56))
sketch1.addConstraint(Sketcher.Constraint("Horizontal", 58))
sketch1.addConstraint(Sketcher.Constraint("Vertical", 60))
sketch1.addConstraint(Sketcher.Constraint("Horizontal", 62))
sketch1.addConstraint(Sketcher.Constraint("Vertical", 64))
sketch1.addConstraint(Sketcher.Constraint("Horizontal", 66))
sketch1.addConstraint(Sketcher.Constraint("Vertical", 68))
sketch1.addConstraint(Sketcher.Constraint("Horizontal", 70))
sketch1.addConstraint(Sketcher.Constraint("Vertical", 74))
sketch1.addConstraint(Sketcher.Constraint("Horizontal", 78))
sketch1.addConstraint(Sketcher.Constraint("Vertical", 80))
sketch1.addConstraint(Sketcher.Constraint("Horizontal", 82))
sketch1.addConstraint(Sketcher.Constraint("Vertical", 84))
sketch1.addConstraint(Sketcher.Constraint("Horizontal", 86))
sketch1.addConstraint(Sketcher.Constraint("Coincident", 88, 3, -1, 1))
sketch1.addConstraint(Sketcher.Constraint("Equal", 1, 3))
sketch1.addConstraint(Sketcher.Constraint("Equal", 3, 5))
sketch1.addConstraint(Sketcher.Constraint("Equal", 5, 7))
sketch1.addConstraint(Sketcher.Constraint("Equal", 7, 9))
sketch1.addConstraint(Sketcher.Constraint("Equal", 9, 11))
sketch1.addConstraint(Sketcher.Constraint("Equal", 11, 13))
sketch1.addConstraint(Sketcher.Constraint("Equal", 13, 15))
sketch1.addConstraint(Sketcher.Constraint("Equal", 15, 17))
sketch1.addConstraint(Sketcher.Constraint("Equal", 17, 21))
sketch1.addConstraint(Sketcher.Constraint("Equal", 21, 23))
sketch1.addConstraint(Sketcher.Constraint("Equal", 23, 25))
sketch1.addConstraint(Sketcher.Constraint("Equal", 25, 27))
sketch1.addConstraint(Sketcher.Constraint("Equal", 27, 29))
sketch1.addConstraint(Sketcher.Constraint("Equal", 29, 31))
sketch1.addConstraint(Sketcher.Constraint("Equal", 31, 33))
sketch1.addConstraint(Sketcher.Constraint("Equal", 33, 35))
sketch1.addConstraint(Sketcher.Constraint("Equal", 35, 37))
sketch1.addConstraint(Sketcher.Constraint("Equal", 37, 39))
sketch1.addConstraint(Sketcher.Constraint("Equal", 19, 41))
sketch1.addConstraint(Sketcher.Constraint("Equal", 39, 43))
sketch1.addConstraint(Sketcher.Constraint("Equal", 43, 45))
sketch1.addConstraint(Sketcher.Constraint("Equal", 45, 47))
sketch1.addConstraint(Sketcher.Constraint("Equal", 47, 49))
sketch1.addConstraint(Sketcher.Constraint("Equal", 49, 51))
sketch1.addConstraint(Sketcher.Constraint("Equal", 51, 53))
sketch1.addConstraint(Sketcher.Constraint("Equal", 53, 55))
sketch1.addConstraint(Sketcher.Constraint("Equal", 55, 57))
sketch1.addConstraint(Sketcher.Constraint("Equal", 57, 59))
sketch1.addConstraint(Sketcher.Constraint("Equal", 59, 61))
sketch1.addConstraint(Sketcher.Constraint("Equal", 41, 63))
sketch1.addConstraint(Sketcher.Constraint("Equal", 61, 65))
sketch1.addConstraint(Sketcher.Constraint("Equal", 65, 67))
sketch1.addConstraint(Sketcher.Constraint("Equal", 67, 69))
sketch1.addConstraint(Sketcher.Constraint("Equal", 69, 71))
sketch1.addConstraint(Sketcher.Constraint("Equal", 71, 73))
sketch1.addConstraint(Sketcher.Constraint("Equal", 73, 75))
sketch1.addConstraint(Sketcher.Constraint("Equal", 75, 77))
sketch1.addConstraint(Sketcher.Constraint("Equal", 77, 79))
sketch1.addConstraint(Sketcher.Constraint("Equal", 79, 81))
sketch1.addConstraint(Sketcher.Constraint("Equal", 81, 83))
sketch1.addConstraint(Sketcher.Constraint("Equal", 63, 85))
sketch1.addConstraint(Sketcher.Constraint("Equal", 83, 87))
sketch1.addConstraint(Sketcher.Constraint("Symmetric", 1, 3, 45, 3, -1, 1))
sketch1.addConstraint(Sketcher.Constraint("Symmetric", 5, 3, 49, 3, -1, 1))
sketch1.addConstraint(Sketcher.Constraint("Symmetric", 7, 3, 51, 3, -1, 1))
sketch1.addConstraint(Sketcher.Constraint("Symmetric", 11, 3, 55, 3, -1, 1))
sketch1.addConstraint(Sketcher.Constraint("Symmetric", 15, 3, 59, 3, -1, 1))
sketch1.addConstraint(Sketcher.Constraint("Symmetric", 19, 3, 63, 3, -1, 1))
sketch1.addConstraint(Sketcher.Constraint("Symmetric", 23, 3, 67, 3, -1, 1))
sketch1.addConstraint(Sketcher.Constraint("Symmetric", 27, 3, 71, 3, -1, 1))
sketch1.addConstraint(Sketcher.Constraint("Symmetric", 29, 3, 73, 3, -1, 1))
sketch1.addConstraint(Sketcher.Constraint("Symmetric", 33, 3, 77, 3, -1, 1))
sketch1.addConstraint(Sketcher.Constraint("Symmetric", 37, 3, 81, 3, -1, 1))
sketch1.addConstraint(Sketcher.Constraint("Symmetric", 41, 3, 85, 3, -1, 1))
sketch1.addConstraint(Sketcher.Constraint("Symmetric", 5, 3, 11, 3, -2))
sketch1.addConstraint(Sketcher.Constraint("Symmetric", 1, 3, 15, 3, -2))
sketch1.addConstraint(Sketcher.Constraint("Symmetric", 41, 3, 63, 3, -2))
sketch1.addConstraint(Sketcher.Constraint("Symmetric", 37, 3, 67, 3, -2))
sketch1.addConstraint(Sketcher.Constraint("Symmetric", 33, 3, 71, 3, -2))
sketch1.addConstraint(Sketcher.Constraint("Perpendicular", 6, 10))
sketch1.addConstraint(Sketcher.Constraint("Parallel", 10, 28))
sketch1.addConstraint(Sketcher.Constraint("Perpendicular", 28, 32))
sketch1.addConstraint(Sketcher.Constraint("Perpendicular", 50, 54))
sketch1.addConstraint(Sketcher.Constraint("Perpendicular", 72, 76))
sketch1.addConstraint(Sketcher.Constraint("Horizontal", 31, 3, 73, 3))
sketch1.addConstraint(Sketcher.Constraint("Equal", 82, 0))
sketch1.addConstraint(Sketcher.Constraint("Equal", 78, 4))
sketch1.addConstraint(Sketcher.Constraint("Equal", 86, 20))
sketch1.addConstraint(Sketcher.Constraint("Equal", 58, 24))
sketch1.addConstraint(Sketcher.Constraint("Equal", 52, 30))
sketch1.addConstraint(Sketcher.Constraint("Equal", 10, 28))
sketch1.addConstraint(Sketcher.Constraint("Diameter", 88, Q("5 mm")))
sketch1.addConstraint(Sketcher.Constraint("Radius", 19, Q("2 mm")))
sketch1.addConstraint(Sketcher.Constraint("Radius", 1, Q("0.6 mm")))
sketch1.addConstraint(Sketcher.Constraint("DistanceX", 2, 1, 2, 2, Q("1.2 mm")))
sketch1.addConstraint(Sketcher.Constraint("DistanceX", 18, 2, 18, 1, Q("4.3 mm")))
sketch1.addConstraint(Sketcher.Constraint("DistanceX", 22, 1, 22, 2, Q("0.6 mm")))
sketch1.addConstraint(Sketcher.Constraint("DistanceX", 19, 3, -1, 1, Q("8 mm")))
sketch1.addConstraint(Sketcher.Constraint("DistanceY", 7, 3, -1, 1, Q("4.5 mm")))
sketch1.addConstraint(Sketcher.Constraint("DistanceX", 26, 1, 26, 2, Q("0.790812 mm")))
sketch1.setExpression("Constraints[196]", "Params.sketch1_diameter")
sketch1.setExpression("Constraints[197]", "Params.sketch1_radius")
sketch1.setExpression("Constraints[198]", "Params.sketch1_radius2")
sketch1.setExpression("Constraints[199]", "Params.sketch1_width")
sketch1.setExpression("Constraints[200]", "Params.sketch1_width2")
pad1 = body.newObject("PartDesign::Pad", "Pad")
pad1.Profile = sketch1
pad1.setExpression("Length", "Params.pad1_length")
pad1.Reversed = True

doc.recompute()
